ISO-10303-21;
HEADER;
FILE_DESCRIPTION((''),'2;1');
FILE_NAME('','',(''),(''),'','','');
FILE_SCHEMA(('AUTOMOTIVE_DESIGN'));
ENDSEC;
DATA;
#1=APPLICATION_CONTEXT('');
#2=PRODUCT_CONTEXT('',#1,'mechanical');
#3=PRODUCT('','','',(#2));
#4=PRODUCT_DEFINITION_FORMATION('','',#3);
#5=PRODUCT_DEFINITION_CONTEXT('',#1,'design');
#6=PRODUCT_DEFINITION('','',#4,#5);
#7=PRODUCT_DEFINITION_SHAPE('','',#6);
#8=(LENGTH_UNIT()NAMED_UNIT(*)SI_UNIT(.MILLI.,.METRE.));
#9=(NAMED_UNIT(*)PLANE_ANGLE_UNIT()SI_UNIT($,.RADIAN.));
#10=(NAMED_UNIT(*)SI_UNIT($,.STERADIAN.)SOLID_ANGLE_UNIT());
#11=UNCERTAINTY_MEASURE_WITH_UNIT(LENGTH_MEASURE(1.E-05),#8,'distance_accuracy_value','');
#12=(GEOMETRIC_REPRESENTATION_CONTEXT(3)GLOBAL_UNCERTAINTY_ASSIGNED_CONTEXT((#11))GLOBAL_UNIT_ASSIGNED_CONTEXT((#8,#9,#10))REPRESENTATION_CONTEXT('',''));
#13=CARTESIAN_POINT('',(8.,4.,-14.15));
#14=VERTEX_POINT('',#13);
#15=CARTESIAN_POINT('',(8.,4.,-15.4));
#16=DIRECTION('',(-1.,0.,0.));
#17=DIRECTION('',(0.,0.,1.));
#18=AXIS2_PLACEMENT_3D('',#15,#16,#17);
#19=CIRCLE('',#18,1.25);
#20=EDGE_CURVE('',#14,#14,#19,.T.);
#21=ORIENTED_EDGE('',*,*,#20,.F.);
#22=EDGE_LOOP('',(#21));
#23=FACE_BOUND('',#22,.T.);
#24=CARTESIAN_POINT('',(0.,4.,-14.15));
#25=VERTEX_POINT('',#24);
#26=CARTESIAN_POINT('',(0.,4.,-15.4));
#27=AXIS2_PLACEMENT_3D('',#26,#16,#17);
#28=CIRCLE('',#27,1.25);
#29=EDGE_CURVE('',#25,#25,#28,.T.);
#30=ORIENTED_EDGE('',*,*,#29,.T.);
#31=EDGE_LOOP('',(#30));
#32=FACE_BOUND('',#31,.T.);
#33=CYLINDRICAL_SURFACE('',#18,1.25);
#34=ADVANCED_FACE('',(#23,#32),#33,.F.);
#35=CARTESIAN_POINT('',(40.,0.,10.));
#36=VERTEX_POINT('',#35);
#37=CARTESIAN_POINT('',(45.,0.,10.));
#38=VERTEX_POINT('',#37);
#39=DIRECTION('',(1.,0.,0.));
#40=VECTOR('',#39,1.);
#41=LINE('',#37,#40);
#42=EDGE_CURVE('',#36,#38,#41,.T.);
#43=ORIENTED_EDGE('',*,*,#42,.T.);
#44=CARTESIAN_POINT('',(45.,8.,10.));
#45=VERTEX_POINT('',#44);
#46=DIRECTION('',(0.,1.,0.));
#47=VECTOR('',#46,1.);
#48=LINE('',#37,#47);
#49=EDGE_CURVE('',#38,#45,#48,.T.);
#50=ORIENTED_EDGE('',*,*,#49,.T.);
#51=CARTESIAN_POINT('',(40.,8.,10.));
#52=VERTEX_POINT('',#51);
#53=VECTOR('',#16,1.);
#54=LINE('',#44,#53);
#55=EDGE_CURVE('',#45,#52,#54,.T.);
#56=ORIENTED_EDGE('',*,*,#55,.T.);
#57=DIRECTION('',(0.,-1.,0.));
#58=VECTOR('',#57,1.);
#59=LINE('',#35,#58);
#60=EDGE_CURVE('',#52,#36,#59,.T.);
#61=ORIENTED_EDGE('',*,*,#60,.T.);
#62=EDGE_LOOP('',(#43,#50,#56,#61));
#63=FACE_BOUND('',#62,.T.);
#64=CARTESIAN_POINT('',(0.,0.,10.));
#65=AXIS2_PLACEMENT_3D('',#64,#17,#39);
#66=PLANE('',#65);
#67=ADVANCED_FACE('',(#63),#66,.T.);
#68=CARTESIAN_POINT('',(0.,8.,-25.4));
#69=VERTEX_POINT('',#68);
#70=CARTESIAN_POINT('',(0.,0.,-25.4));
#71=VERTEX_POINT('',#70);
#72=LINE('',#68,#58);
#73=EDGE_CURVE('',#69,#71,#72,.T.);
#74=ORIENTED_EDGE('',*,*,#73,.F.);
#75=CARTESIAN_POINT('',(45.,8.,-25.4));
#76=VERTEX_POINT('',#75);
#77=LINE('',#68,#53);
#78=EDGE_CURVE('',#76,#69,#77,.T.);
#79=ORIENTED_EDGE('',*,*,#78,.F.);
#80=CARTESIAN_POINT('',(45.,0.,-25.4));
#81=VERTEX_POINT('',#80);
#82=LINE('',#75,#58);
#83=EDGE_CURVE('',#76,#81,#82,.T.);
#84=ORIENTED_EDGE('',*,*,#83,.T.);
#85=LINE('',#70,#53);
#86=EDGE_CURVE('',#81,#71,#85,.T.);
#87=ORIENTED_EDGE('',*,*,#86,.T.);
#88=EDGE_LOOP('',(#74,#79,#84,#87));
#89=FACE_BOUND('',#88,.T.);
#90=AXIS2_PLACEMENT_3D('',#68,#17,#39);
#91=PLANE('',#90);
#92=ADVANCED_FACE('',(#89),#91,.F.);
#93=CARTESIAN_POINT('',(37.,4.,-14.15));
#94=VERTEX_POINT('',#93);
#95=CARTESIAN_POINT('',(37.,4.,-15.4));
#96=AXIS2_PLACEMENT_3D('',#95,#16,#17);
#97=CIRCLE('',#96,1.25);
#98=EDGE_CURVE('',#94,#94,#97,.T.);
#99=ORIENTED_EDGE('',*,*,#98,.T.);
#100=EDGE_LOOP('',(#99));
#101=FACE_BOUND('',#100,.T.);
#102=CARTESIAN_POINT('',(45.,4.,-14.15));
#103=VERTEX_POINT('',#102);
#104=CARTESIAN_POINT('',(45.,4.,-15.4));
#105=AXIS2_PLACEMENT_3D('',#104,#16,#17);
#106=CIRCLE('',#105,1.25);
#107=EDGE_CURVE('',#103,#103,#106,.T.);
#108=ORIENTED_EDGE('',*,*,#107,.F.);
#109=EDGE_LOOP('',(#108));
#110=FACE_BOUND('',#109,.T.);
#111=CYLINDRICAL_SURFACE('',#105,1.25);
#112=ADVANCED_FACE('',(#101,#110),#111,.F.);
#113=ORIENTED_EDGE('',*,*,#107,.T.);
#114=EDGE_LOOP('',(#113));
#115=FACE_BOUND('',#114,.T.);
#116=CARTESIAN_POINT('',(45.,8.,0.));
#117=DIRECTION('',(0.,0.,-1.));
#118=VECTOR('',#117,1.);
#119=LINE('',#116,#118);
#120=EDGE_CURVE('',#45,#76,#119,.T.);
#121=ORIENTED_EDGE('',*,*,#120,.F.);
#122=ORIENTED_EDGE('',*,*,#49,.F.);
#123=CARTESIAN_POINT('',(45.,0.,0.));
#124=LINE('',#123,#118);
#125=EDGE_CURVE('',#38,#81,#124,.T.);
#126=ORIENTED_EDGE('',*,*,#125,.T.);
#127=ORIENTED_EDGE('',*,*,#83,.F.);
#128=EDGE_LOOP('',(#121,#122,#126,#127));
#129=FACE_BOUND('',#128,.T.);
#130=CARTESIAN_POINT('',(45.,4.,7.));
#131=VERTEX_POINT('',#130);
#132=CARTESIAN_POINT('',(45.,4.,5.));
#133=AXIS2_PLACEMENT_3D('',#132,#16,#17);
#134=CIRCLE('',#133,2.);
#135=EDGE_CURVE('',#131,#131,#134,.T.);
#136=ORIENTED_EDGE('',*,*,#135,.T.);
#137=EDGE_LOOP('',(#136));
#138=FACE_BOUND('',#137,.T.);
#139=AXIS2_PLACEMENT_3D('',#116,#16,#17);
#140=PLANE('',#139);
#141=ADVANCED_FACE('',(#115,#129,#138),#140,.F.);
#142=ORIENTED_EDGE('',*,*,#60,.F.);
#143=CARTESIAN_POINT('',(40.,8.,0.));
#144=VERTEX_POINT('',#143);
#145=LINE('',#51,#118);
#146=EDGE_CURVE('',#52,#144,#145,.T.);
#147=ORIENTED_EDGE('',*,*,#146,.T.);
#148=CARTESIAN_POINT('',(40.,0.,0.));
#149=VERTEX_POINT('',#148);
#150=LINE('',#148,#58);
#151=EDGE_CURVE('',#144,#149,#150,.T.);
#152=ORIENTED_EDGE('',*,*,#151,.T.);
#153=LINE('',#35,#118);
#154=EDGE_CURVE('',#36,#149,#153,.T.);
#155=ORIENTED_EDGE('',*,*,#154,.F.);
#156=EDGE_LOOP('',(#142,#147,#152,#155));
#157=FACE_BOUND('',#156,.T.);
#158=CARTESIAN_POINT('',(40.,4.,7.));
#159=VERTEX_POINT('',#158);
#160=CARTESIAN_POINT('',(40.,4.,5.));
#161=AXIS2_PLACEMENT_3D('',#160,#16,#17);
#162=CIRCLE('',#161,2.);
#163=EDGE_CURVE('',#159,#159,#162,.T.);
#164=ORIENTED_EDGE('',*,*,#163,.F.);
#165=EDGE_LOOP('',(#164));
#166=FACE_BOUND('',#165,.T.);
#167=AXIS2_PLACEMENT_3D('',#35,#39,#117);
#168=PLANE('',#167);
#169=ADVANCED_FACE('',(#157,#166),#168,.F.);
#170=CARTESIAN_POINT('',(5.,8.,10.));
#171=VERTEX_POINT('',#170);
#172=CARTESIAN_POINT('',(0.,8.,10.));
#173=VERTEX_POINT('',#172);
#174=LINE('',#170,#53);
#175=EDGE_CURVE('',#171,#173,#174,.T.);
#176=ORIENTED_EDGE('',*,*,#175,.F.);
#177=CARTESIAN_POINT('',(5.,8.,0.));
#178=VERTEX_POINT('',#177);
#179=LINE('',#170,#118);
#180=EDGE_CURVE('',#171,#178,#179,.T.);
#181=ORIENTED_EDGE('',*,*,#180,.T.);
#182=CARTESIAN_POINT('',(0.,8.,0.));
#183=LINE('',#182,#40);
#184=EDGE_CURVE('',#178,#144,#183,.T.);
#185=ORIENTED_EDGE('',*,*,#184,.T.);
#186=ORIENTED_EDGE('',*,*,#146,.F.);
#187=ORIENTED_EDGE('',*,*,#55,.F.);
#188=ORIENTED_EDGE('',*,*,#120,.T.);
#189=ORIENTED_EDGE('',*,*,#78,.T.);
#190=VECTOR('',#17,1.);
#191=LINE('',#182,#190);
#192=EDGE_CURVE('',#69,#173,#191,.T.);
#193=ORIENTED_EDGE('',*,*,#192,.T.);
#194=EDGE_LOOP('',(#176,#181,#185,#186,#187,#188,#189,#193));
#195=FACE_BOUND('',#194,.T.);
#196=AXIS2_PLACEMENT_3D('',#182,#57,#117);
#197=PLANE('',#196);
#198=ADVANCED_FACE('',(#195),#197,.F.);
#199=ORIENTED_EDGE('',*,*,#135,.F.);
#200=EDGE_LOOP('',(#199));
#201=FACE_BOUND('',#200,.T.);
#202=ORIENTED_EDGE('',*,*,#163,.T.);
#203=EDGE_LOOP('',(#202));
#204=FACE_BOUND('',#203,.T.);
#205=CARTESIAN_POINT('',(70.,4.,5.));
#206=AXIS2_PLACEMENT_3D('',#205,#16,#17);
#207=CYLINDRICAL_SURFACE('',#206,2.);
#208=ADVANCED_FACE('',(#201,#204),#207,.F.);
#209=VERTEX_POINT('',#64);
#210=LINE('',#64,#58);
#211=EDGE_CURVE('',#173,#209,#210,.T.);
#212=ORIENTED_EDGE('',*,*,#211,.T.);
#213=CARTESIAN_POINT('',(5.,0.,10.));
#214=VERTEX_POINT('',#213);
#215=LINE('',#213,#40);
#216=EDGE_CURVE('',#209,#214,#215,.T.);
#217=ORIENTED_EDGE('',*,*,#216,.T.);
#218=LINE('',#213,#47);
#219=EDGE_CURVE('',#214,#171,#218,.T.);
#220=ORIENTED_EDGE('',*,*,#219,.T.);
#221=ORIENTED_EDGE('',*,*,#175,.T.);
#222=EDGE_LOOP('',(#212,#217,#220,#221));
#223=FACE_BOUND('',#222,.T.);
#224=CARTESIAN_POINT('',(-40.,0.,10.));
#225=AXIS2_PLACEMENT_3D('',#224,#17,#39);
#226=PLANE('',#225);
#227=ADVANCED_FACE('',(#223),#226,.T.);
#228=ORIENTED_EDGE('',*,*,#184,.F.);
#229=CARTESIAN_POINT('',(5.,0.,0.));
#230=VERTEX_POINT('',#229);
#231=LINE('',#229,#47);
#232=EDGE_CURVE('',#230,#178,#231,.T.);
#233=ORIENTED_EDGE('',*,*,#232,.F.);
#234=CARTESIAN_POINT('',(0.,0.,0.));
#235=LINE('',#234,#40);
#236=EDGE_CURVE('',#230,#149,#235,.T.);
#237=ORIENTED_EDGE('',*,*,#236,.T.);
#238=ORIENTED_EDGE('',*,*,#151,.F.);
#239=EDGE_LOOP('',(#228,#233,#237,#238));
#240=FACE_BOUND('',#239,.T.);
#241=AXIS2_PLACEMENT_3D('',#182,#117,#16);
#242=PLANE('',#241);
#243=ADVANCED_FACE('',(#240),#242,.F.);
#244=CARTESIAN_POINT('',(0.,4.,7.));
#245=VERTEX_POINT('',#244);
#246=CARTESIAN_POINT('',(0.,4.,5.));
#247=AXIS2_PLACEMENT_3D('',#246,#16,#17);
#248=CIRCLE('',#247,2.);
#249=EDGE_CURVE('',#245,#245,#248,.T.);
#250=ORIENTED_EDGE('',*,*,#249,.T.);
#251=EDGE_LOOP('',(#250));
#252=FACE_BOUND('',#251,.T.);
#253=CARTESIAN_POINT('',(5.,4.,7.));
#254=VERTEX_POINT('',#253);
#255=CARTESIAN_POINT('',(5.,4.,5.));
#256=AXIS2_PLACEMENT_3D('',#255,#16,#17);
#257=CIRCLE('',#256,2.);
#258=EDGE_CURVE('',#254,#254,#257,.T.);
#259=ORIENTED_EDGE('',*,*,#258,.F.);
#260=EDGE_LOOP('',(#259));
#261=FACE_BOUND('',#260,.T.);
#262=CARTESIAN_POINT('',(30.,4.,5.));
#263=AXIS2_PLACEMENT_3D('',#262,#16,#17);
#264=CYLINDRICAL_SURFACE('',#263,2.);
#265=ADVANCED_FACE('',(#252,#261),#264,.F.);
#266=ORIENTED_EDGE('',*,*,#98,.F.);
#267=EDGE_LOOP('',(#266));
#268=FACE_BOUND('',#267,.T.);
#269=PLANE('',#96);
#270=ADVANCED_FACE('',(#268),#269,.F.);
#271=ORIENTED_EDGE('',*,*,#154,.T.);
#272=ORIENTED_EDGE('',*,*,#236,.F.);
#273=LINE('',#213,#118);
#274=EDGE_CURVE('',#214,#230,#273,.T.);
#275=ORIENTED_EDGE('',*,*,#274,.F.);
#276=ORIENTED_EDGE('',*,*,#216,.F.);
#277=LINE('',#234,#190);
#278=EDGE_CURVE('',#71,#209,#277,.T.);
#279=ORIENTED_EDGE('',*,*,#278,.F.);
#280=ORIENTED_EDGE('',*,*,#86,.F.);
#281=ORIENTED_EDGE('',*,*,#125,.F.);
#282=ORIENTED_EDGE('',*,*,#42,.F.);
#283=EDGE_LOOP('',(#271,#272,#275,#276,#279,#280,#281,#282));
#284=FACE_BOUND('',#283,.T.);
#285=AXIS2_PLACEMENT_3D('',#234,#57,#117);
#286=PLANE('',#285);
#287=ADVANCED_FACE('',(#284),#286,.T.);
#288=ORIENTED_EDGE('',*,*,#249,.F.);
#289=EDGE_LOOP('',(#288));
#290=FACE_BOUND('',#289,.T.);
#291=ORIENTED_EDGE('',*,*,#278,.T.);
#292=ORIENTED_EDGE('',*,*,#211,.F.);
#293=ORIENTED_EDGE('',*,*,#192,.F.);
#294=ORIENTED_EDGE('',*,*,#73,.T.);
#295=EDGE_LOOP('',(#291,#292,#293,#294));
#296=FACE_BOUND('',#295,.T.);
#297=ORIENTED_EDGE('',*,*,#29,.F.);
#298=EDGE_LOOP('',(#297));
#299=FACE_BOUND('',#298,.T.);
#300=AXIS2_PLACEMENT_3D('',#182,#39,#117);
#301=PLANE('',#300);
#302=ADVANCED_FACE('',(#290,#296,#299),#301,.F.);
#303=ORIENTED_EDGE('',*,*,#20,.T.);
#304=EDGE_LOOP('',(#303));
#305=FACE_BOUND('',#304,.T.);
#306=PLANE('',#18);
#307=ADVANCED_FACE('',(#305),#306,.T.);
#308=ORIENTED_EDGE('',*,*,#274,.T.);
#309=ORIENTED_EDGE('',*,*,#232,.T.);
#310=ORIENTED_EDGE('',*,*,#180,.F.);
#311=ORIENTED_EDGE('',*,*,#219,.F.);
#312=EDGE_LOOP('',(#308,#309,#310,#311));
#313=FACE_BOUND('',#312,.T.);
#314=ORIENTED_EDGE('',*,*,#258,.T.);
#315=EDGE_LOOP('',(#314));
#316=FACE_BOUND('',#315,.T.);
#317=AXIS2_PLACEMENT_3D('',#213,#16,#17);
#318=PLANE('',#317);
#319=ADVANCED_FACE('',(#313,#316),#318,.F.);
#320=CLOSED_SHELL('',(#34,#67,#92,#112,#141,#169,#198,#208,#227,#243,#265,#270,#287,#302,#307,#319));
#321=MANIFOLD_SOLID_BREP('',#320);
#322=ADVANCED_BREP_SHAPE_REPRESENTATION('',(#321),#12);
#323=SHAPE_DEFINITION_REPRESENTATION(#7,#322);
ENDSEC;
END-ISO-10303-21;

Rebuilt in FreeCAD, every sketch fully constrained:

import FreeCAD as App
import Part
import Sketcher
Q = App.Units.Quantity


def add_polygon(sketch, points):
    """Adds a closed chain of lines whose ends are joined by coincident constraints."""
    first, n = sketch.GeometryCount, len(points)
    for a, b in zip(points, points[1:] + points[:1]):
        sketch.addGeometry(Part.LineSegment(App.Vector(*a, 0), App.Vector(*b, 0)), False)
    for i in range(n):
        sketch.addConstraint(Sketcher.Constraint("Coincident", first + i, 2, first + (i + 1) % n, 1))

doc = App.newDocument("Part")
body = doc.addObject("PartDesign::Body", "Body")

sketch1 = body.newObject("Sketcher::SketchObject", "Sketch")
sketch1.AttachmentSupport = (doc.getObject("XZ_Plane"), [""])
sketch1.MapMode = "FlatFace"
add_polygon(sketch1, [(0, -25), (0, 0), (45, 0), (45, -25)])
sketch1.addConstraint([
    Sketcher.Constraint("Vertical", 0),
    Sketcher.Constraint("Horizontal", 1),
    Sketcher.Constraint("Vertical", 2),
    Sketcher.Constraint("Horizontal", 3),
    Sketcher.Constraint("Coincident", 0, 2, -1, 1),
    Sketcher.Constraint("DistanceX", 1, 1, 1, 2, Q("45 mm")),
    Sketcher.Constraint("DistanceY", 0, 1, 0, 2, Q("25.4 mm")),
])
pad1 = body.newObject("PartDesign::Pad", "Pad")
pad1.Profile = sketch1
pad1.Length = 8
pad1.Reversed = True

sketch2 = body.newObject("Sketcher::SketchObject", "Sketch001")
sketch2.AttachmentSupport = (doc.getObject("XY_Plane"), [""])
sketch2.MapMode = "FlatFace"
add_polygon(sketch2, [(40, 8), (40, 0), (45, 0), (45, 8)])
sketch2.addConstraint([
    Sketcher.Constraint("Vertical", 0),
    Sketcher.Constraint("Horizontal", 1),
    Sketcher.Constraint("Vertical", 2),
    Sketcher.Constraint("Horizontal", 3),
    Sketcher.Constraint("PointOnObject", 0, 2, -1),
    Sketcher.Constraint("DistanceX", 1, 1, 1, 2, Q("5 mm")),
    Sketcher.Constraint("DistanceY", 0, 2, 0, 1, Q("8 mm")),
    Sketcher.Constraint("DistanceX", -1, 1, 0, 2, Q("40 mm")),
])
pad2 = body.newObject("PartDesign::Pad", "Pad001")
pad2.Profile = sketch2
pad2.Length = 10

sketch3 = body.newObject("Sketcher::SketchObject", "Sketch002")
sketch3.AttachmentSupport = (doc.getObject("YZ_Plane"), [""])
sketch3.MapMode = "FlatFace"
sketch3.AttachmentOffset = App.Placement(App.Vector(0, 0, 40), App.Rotation())
sketch3.addGeometry(Part.Circle(App.Vector(4, 5, 0), App.Vector(0, 0, 1), 2), False)
sketch3.addConstraint([
    Sketcher.Constraint("Diameter", 0, Q("4 mm")),
    Sketcher.Constraint("DistanceX", -1, 1, 0, 3, Q("4 mm")),
    Sketcher.Constraint("DistanceY", -1, 1, 0, 3, Q("5 mm")),
])
pocket1 = body.newObject("PartDesign::Pocket", "Pocket")
pocket1.Profile = sketch3
pocket1.Length = 30
pocket1.Reversed = True
doc.recompute()

linearpattern = body.newObject("PartDesign::LinearPattern", "LinearPattern")
linearpattern.Originals = [pad2, pocket1]
linearpattern.Direction = (doc.getObject("X_Axis"), [""])
linearpattern.Mode = "offset"
linearpattern.Offset = 40
linearpattern.Occurrences = 2
linearpattern.Reversed = True
body.Tip = linearpattern

sketch4 = body.newObject("Sketcher::SketchObject", "Sketch003")
sketch4.AttachmentSupport = (doc.getObject("YZ_Plane"), [""])
sketch4.MapMode = "FlatFace"
sketch4.addGeometry(Part.Circle(App.Vector(4, -15.4, 0), App.Vector(0, 0, 1), 1.2), False)
sketch4.addConstraint([
    Sketcher.Constraint("Diameter", 0, Q("2.5 mm")),
    Sketcher.Constraint("DistanceX", -1, 1, 0, 3, Q("4 mm")),
    Sketcher.Constraint("DistanceY", 0, 3, -1, 1, Q("15.4 mm")),
])
pocket2 = body.newObject("PartDesign::Pocket", "Pocket001")
pocket2.Profile = sketch4
pocket2.Length = 8
pocket2.Reversed = True
doc.recompute()

linearpattern2 = body.newObject("PartDesign::LinearPattern", "LinearPattern001")
linearpattern2.Originals = [pocket2]
linearpattern2.Direction = (doc.getObject("X_Axis"), [""])
linearpattern2.Mode = "offset"
linearpattern2.Offset = 37
linearpattern2.Occurrences = 2
body.Tip = linearpattern2

doc.recompute()
